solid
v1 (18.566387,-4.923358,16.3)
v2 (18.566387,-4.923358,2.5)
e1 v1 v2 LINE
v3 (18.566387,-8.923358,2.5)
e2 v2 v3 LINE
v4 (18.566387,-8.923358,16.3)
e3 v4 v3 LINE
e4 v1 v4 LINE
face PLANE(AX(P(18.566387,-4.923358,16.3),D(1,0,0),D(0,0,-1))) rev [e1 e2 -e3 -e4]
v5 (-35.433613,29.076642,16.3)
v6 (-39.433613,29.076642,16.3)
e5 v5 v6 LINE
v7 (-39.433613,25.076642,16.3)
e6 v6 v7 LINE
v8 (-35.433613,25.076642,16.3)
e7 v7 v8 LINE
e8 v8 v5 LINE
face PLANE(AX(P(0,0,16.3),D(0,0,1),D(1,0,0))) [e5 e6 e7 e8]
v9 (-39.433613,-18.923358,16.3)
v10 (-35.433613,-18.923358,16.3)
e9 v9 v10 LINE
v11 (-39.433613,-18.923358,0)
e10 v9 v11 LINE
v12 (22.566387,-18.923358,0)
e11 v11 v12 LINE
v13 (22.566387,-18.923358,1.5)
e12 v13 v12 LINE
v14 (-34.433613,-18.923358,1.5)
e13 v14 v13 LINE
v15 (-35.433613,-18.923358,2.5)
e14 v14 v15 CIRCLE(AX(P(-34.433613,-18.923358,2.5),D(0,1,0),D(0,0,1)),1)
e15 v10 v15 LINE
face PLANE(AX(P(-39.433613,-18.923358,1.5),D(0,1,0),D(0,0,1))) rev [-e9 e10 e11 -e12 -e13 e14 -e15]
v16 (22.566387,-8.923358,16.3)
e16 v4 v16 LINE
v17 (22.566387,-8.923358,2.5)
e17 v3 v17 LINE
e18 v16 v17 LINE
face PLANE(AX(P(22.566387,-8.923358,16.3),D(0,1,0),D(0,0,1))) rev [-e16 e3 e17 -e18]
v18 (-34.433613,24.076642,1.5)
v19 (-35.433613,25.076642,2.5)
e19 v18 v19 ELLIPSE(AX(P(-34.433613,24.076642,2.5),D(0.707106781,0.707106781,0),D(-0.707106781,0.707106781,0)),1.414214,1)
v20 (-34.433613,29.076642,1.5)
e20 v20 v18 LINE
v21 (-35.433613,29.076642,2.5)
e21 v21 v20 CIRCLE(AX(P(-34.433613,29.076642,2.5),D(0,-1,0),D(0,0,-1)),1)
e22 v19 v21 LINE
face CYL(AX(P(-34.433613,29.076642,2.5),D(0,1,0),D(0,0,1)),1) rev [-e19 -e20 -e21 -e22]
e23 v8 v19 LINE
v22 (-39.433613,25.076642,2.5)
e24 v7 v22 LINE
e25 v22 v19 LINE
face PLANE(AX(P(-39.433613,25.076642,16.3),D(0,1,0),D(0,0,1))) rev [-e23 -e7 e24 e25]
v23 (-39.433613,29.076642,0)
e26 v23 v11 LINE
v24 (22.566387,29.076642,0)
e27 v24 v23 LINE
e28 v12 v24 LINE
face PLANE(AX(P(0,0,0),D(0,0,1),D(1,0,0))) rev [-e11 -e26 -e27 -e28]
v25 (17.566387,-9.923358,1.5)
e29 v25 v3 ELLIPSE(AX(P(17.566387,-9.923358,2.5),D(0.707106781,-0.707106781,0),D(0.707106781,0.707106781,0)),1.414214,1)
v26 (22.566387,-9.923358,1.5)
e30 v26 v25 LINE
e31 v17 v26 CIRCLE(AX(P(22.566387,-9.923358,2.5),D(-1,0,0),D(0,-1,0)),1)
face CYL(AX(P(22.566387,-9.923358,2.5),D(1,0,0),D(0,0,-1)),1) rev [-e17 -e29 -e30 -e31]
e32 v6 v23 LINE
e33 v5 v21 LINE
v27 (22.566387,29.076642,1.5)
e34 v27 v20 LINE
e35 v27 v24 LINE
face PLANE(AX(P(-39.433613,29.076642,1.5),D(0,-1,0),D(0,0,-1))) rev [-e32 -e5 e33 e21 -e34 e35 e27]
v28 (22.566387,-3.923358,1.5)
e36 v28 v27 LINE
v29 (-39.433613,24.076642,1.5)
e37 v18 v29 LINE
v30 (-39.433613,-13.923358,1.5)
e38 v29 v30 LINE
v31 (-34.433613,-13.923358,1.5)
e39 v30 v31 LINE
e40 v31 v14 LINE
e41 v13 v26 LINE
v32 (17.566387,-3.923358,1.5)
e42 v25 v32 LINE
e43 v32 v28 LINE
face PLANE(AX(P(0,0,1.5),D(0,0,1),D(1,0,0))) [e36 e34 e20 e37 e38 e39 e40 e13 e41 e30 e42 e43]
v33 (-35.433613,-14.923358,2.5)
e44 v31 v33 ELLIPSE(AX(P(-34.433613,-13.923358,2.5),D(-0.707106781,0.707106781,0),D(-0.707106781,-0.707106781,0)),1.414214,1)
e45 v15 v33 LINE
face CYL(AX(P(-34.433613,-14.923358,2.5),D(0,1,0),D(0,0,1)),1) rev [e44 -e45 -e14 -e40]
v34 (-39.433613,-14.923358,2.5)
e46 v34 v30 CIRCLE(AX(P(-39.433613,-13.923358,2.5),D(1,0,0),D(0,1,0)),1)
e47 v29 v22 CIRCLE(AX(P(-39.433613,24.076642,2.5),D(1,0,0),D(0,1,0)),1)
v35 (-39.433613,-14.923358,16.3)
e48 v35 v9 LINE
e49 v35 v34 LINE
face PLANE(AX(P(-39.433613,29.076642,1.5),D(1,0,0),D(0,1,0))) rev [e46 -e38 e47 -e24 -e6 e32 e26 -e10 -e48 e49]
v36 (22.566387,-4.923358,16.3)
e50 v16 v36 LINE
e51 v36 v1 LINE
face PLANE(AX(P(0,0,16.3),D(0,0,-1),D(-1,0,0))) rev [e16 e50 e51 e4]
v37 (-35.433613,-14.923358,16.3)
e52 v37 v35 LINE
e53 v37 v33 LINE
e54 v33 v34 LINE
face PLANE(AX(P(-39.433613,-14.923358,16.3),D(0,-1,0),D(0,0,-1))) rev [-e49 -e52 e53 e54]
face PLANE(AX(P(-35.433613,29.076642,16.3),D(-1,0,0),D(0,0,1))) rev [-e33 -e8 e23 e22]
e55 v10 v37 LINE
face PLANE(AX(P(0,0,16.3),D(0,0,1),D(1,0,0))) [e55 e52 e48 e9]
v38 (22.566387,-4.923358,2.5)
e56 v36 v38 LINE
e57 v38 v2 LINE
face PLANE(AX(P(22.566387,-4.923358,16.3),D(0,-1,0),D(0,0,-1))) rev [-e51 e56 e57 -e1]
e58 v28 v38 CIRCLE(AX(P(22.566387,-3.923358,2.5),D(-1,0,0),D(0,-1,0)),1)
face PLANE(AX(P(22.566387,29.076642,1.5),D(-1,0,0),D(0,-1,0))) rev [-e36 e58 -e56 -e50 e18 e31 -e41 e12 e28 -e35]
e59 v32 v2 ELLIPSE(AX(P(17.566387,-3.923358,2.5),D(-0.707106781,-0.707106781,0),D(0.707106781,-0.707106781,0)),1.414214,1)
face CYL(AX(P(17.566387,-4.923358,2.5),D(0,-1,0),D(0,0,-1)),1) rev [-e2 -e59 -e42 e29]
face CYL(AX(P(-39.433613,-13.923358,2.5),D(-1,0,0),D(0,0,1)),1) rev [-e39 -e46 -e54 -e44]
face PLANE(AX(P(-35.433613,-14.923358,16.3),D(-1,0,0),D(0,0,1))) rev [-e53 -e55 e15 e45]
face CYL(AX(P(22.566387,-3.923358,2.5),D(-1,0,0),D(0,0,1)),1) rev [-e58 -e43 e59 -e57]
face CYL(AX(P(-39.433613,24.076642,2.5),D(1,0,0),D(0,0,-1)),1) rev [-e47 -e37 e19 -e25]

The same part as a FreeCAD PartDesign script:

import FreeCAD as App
import Part
import Sketcher
from FreeCAD import Vector
Q = App.Units.Quantity


def edges_at(feature, points):
    """Names of the edges that pass closest to the given points."""
    edges = feature.Shape.Edges
    near = lambda p: min(range(len(edges)), key=lambda i: edges[i].distToShape(Part.Vertex(*p))[0])
    return sorted({f"Edge{near(p) + 1}" for p in points})


def add_polygon(sketch, points):
    """Adds a closed chain of lines whose ends are joined by coincident constraints."""
    first, n = sketch.GeometryCount, len(points)
    for a, b in zip(points, points[1:] + points[:1]):
        sketch.addGeometry(Part.LineSegment(App.Vector(*a, 0), App.Vector(*b, 0)), False)
    for i in range(n):
        sketch.addConstraint(Sketcher.Constraint("Coincident", first + i, 2, first + (i + 1) % n, 1))

doc = App.newDocument("Part")
params = doc.addObject("Spreadsheet::Sheet", "Params")
for row, (alias, value) in enumerate([
    ("sketch1_width", "62 mm"),
    ("sketch1_height", "48 mm"),
    ("pad1_length", "1.5 mm"),
    ("sketch2_width", "4 mm"),
    ("pad2_length", "14.8 mm"),
    ("fillet_radius", "1 mm"),
], start=1):
    params.set(f"A{row}", alias)
    params.set(f"B{row}", "=" + value)
    params.setAlias(f"B{row}", alias)

body = doc.addObject("PartDesign::Body", "Body")

# Sketch on XY plane
sketch1 = doc.addObject("Sketcher::SketchObject", "Sketch")
body.addObject(sketch1)
sketch1.AttachmentSupport = (doc.XY_Plane, [""])
sketch1.MapMode = "FlatFace"
add_polygon(sketch1, [(-39, 29), (-39, -19), (23, -19), (23, 29)])  # lines 0-3
sketch1.addConstraint([
    Sketcher.Constraint("Vertical", 0),
    Sketcher.Constraint("Horizontal", 1),
    Sketcher.Constraint("Vertical", 2),
    Sketcher.Constraint("Horizontal", 3),
    Sketcher.Constraint("DistanceX", 1, 1, 1, 2, Q("62 mm")),
    Sketcher.Constraint("DistanceY", 0, 2, 0, 1, Q("48 mm")),
    Sketcher.Constraint("DistanceX", 0, 2, -1, 1, Q("39.433613 mm")),
    Sketcher.Constraint("DistanceY", 0, 2, -1, 1, Q("18.923358 mm")),
])
sketch1.setExpression("Constraints[8]", "Params.sketch1_width")
sketch1.setExpression("Constraints[9]", "Params.sketch1_height")
pad1 = doc.addObject("PartDesign::Pad", "Pad")
body.addObject(pad1)
pad1.Profile = sketch1
pad1.setExpression("Length", "Params.pad1_length")

# Sketch on XY plane
sketch2 = doc.addObject("Sketcher::SketchObject", "Sketch001")
body.addObject(sketch2)
sketch2.AttachmentSupport = (doc.XY_Plane, [""])
sketch2.MapMode = "FlatFace"
sketch2.AttachmentOffset = App.Placement(Vector(0, 0, 1.5), App.Rotation())
add_polygon(sketch2, [(-39.4, 29.1), (-39.4, 25.1), (-35.4, 25.1), (-35.4, 29.1)])  # lines 0-3
add_polygon(sketch2, [(-39.4, -14.9), (-39.4, -18.9), (-35.4, -18.9), (-35.4, -14.9)])  # lines 4-7
add_polygon(sketch2, [(18.6, -4.9), (18.6, -8.9), (22.6, -8.9), (22.6, -4.9)])  # lines 8-11
sketch2.addConstraint([
    Sketcher.Constraint("Vertical", 0),
    Sketcher.Constraint("Horizontal", 1),
    Sketcher.Constraint("Vertical", 2),
    Sketcher.Constraint("Horizontal", 3),
    Sketcher.Constraint("Vertical", 4),
    Sketcher.Constraint("Horizontal", 5),
    Sketcher.Constraint("Vertical", 6),
    Sketcher.Constraint("Horizontal", 7),
    Sketcher.Constraint("Vertical", 8),
    Sketcher.Constraint("Horizontal", 9),
    Sketcher.Constraint("Vertical", 10),
    Sketcher.Constraint("Horizontal", 11),
    Sketcher.Constraint("Vertical", 3, 2, 4, 2),
    Sketcher.Constraint("Vertical", 2, 2, 5, 2),
    Sketcher.Constraint("Equal", 7, 9),
    Sketcher.Constraint("Equal", 11, 0),
    Sketcher.Constraint("Equal", 2, 4),
    Sketcher.Constraint("Equal", 6, 8),
    Sketcher.Constraint("DistanceX", 1, 1, 1, 2, Q("4 mm")),
    Sketcher.Constraint("DistanceY", 4, 2, 0, 2, Q("44 mm")),
    Sketcher.Constraint("DistanceX", 6, 2, 8, 2, Q("54 mm")),
    Sketcher.Constraint("DistanceY", 6, 2, 8, 2, Q("6 mm")),
    Sketcher.Constraint("DistanceX", 0, 2, -1, 1, Q("39.433613 mm")),
    Sketcher.Constraint("DistanceY", -1, 1, 0, 2, Q("25.076642 mm")),
])
sketch2.setExpression("Constraints[30]", "Params.sketch2_width")
pad2 = doc.addObject("PartDesign::Pad", "Pad001")
body.addObject(pad2)
pad2.Profile = sketch2
pad2.setExpression("Length", "Params.pad2_length")
doc.recompute()

fillet = doc.addObject("PartDesign::Fillet", "Fillet")
body.addObject(fillet)
fillet.Base = (pad2, edges_at(pad2, [
    (-37.434, 25.077, 1.5),
    (-35.434, 27.077, 1.5),
    (-35.434, -16.923, 1.5),
    (-37.434, -14.923, 1.5),
    (20.566, -4.923, 1.5),
    (18.566, -6.923, 1.5),
    (20.566, -8.923, 1.5),
]))
fillet.setExpression("Radius", "Params.fillet_radius")

doc.recompute()
